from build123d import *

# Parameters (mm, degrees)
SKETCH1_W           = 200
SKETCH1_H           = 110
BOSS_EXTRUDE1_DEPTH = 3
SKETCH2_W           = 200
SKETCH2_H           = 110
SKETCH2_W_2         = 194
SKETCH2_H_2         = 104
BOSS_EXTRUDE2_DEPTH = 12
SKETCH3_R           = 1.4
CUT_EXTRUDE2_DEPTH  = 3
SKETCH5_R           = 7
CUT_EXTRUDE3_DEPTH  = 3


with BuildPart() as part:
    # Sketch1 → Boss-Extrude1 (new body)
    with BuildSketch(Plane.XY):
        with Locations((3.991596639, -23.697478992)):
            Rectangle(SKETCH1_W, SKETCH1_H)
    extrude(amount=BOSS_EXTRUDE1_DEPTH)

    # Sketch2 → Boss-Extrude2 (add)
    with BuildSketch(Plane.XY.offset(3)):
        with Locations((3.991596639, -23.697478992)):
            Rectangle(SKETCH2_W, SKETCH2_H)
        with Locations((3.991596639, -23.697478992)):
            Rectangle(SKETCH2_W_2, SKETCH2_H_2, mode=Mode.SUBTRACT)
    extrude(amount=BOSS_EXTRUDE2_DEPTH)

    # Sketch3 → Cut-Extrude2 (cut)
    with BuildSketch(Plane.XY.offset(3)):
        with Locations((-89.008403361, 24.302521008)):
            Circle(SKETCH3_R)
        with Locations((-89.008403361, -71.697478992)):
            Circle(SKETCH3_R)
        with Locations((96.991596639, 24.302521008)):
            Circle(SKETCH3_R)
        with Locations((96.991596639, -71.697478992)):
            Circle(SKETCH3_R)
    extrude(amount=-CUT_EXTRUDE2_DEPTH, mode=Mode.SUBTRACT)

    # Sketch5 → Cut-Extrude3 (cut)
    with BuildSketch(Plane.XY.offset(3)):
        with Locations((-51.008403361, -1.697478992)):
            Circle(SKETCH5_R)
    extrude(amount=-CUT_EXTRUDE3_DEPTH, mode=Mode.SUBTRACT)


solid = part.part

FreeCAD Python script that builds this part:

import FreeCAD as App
import Part
import Sketcher
from FreeCAD import Vector


def add_polygon(sketch, points):
    """Adds a closed chain of lines whose ends are joined by coincident constraints."""
    first, n = sketch.GeometryCount, len(points)
    for a, b in zip(points, points[1:] + points[:1]):
        sketch.addGeometry(Part.LineSegment(App.Vector(*a, 0), App.Vector(*b, 0)), False)
    for i in range(n):
        sketch.addConstraint(Sketcher.Constraint("Coincident", first + i, 2, first + (i + 1) % n, 1))

doc = App.newDocument("Part")
body = doc.addObject("PartDesign::Body", "Body")

sketch1 = doc.addObject("Sketcher::SketchObject", "Sketch")
body.addObject(sketch1)
sketch1.AttachmentSupport = (doc.XY_Plane, [""])
sketch1.MapMode = "FlatFace"
add_polygon(sketch1, [(-96, 31), (-96, -79), (104, -79), (104, 31)])
sketch1.addConstraint([
    Sketcher.Constraint("Vertical", 0),
    Sketcher.Constraint("Horizontal", 1),
    Sketcher.Constraint("Vertical", 2),
    Sketcher.Constraint("Horizontal", 3),
    Sketcher.Constraint("DistanceX", 1, 1, 1, 2, 200.0),
    Sketcher.Constraint("DistanceY", 0, 2, 0, 1, 110.0),
    Sketcher.Constraint("DistanceY", 0, 2, -1, 1, 78.697479),
    Sketcher.Constraint("DistanceX", 0, 2, -1, 1, 96.008403),
])
pad1 = doc.addObject("PartDesign::Pad", "Pad")
body.addObject(pad1)
pad1.Profile = sketch1
pad1.Length = 3

sketch2 = doc.addObject("Sketcher::SketchObject", "Sketch001")
body.addObject(sketch2)
sketch2.AttachmentSupport = (doc.XY_Plane, [""])
sketch2.MapMode = "FlatFace"
sketch2.AttachmentOffset = App.Placement(Vector(0, 0, 3), App.Rotation())
add_polygon(sketch2, [(-96, 31), (-96, -79), (104, -79), (104, 31)])
add_polygon(sketch2, [(101, -76), (-93, -76), (-93, 28), (101, 28)])
sketch2.addConstraint([
    Sketcher.Constraint("Vertical", 0),
    Sketcher.Constraint("Horizontal", 1),
    Sketcher.Constraint("Vertical", 2),
    Sketcher.Constraint("Horizontal", 3),
    Sketcher.Constraint("Horizontal", 4),
    Sketcher.Constraint("Vertical", 5),
    Sketcher.Constraint("Horizontal", 6),
    Sketcher.Constraint("Vertical", 7),
    Sketcher.Constraint("DistanceX", 1, 1, 1, 2, 200.0),
    Sketcher.Constraint("DistanceX", 4, 2, 4, 1, 194.0),
    Sketcher.Constraint("DistanceY", 0, 2, 0, 1, 110.0),
    Sketcher.Constraint("DistanceY", 5, 1, 5, 2, 104.0),
    Sketcher.Constraint("DistanceX", 0, 2, 4, 2, 3.0),
    Sketcher.Constraint("DistanceY", 0, 2, 4, 2, 3.0),
    Sketcher.Constraint("DistanceY", 0, 2, -1, 1, 78.697479),
    Sketcher.Constraint("DistanceX", 0, 2, -1, 1, 96.008403),
])
pad2 = doc.addObject("PartDesign::Pad", "Pad001")
body.addObject(pad2)
pad2.Profile = sketch2
pad2.Length = 12

sketch3 = doc.addObject("Sketcher::SketchObject", "Sketch002")
body.addObject(sketch3)
sketch3.AttachmentSupport = (doc.XY_Plane, [""])
sketch3.MapMode = "FlatFace"
sketch3.AttachmentOffset = App.Placement(Vector(0, 0, 3), App.Rotation())
sketch3.addGeometry([
    Part.Circle(Vector(-89, 24.3, 0), Vector(0, 0, 1), 1.4),
    Part.Circle(Vector(-89, -71.7, 0), Vector(0, 0, 1), 1.4),
    Part.Circle(Vector(97, 24.3, 0), Vector(0, 0, 1), 1.4),
    Part.Circle(Vector(97, -71.7, 0), Vector(0, 0, 1), 1.4),
], False)
sketch3.addConstraint([
    Sketcher.Constraint("Equal", 0, 1),
    Sketcher.Constraint("Equal", 1, 2),
    Sketcher.Constraint("Equal", 2, 3),
    Sketcher.Constraint("Horizontal", 0, 3, 2, 3),
    Sketcher.Constraint("Horizontal", 1, 3, 3, 3),
    Sketcher.Constraint("Vertical", 0, 3, 1, 3),
    Sketcher.Constraint("Vertical", 2, 3, 3, 3),
    Sketcher.Constraint("Diameter", 0, 2.8),
    Sketcher.Constraint("DistanceY", 1, 3, 0, 3, 96.0),
    Sketcher.Constraint("DistanceX", 0, 3, 2, 3, 186.0),
    Sketcher.Constraint("DistanceY", -1, 1, 0, 3, 24.302521),
    Sketcher.Constraint("DistanceX", 0, 3, -1, 1, 89.008403),
])
pocket1 = doc.addObject("PartDesign::Pocket", "Pocket")
body.addObject(pocket1)
pocket1.Profile = sketch3
pocket1.Length = 3

sketch4 = doc.addObject("Sketcher::SketchObject", "Sketch003")
body.addObject(sketch4)
sketch4.AttachmentSupport = (doc.XY_Plane, [""])
sketch4.MapMode = "FlatFace"
sketch4.AttachmentOffset = App.Placement(Vector(0, 0, 3), App.Rotation())
sketch4.addGeometry(Part.Circle(Vector(-51, -2, 0), Vector(0, 0, 1), 7), False)
sketch4.addConstraint([
    Sketcher.Constraint("Diameter", 0, 14.0),
    Sketcher.Constraint("DistanceY", 0, 3, -1, 1, 1.697479),
    Sketcher.Constraint("DistanceX", 0, 3, -1, 1, 51.008403),
])
pocket2 = doc.addObject("PartDesign::Pocket", "Pocket001")
body.addObject(pocket2)
pocket2.Profile = sketch4
pocket2.Length = 3

doc.recompute()
